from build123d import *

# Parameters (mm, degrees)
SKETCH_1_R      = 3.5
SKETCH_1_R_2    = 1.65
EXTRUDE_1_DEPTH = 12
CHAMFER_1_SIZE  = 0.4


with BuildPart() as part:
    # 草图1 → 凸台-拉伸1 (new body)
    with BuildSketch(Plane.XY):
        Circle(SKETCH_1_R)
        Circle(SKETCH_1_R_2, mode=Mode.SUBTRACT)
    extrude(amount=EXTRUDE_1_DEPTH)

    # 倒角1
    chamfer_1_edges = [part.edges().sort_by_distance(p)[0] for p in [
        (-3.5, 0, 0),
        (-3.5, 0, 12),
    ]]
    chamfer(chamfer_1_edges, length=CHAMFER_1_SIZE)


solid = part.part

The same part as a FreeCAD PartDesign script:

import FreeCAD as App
import Part
import Sketcher
from FreeCAD import Vector


def edges_at(feature, points):
    """Names of the edges that pass closest to the given points."""
    edges = feature.Shape.Edges
    near = lambda p: min(range(len(edges)), key=lambda i: edges[i].distToShape(Part.Vertex(*p))[0])
    return sorted({f"Edge{near(p) + 1}" for p in points})

doc = App.newDocument("Part")
params = doc.addObject("Spreadsheet::Sheet", "Params")
for row, (alias, value) in enumerate([
    ("sketch1_diameter", "7 mm"),
    ("sketch1_diameter2", "3.3 mm"),
    ("pad1_length", "12 mm"),
    ("chamfer_size", "0.4 mm"),
], start=1):
    params.set(f"A{row}", alias)
    params.set(f"B{row}", "=" + value)
    params.setAlias(f"B{row}", alias)

body = doc.addObject("PartDesign::Body", "Body")

# Sketch on XY plane
sketch1 = body.newObject("Sketcher::SketchObject", "Sketch")
sketch1.AttachmentSupport = (doc.getObject("XY_Plane"), [""])
sketch1.MapMode = "FlatFace"
sketch1.addGeometry([
    Part.Circle(Vector(0, 0, 0), Vector(0, 0, 1), 3.5),
    Part.Circle(Vector(0, 0, 0), Vector(0, 0, 1), 1.6),
], False)
sketch1.addConstraint([
    Sketcher.Constraint("Coincident", 0, 3, -1, 1),
    Sketcher.Constraint("Coincident", 1, 3, -1, 1),
    Sketcher.Constraint("Diameter", 0, 7.0),
    Sketcher.Constraint("Diameter", 1, 3.3),
])
sketch1.setExpression("Constraints[2]", "Params.sketch1_diameter")
sketch1.setExpression("Constraints[3]", "Params.sketch1_diameter2")
pad1 = body.newObject("PartDesign::Pad", "Pad")
pad1.Profile = sketch1
pad1.setExpression("Length", "Params.pad1_length")
doc.recompute()

chamfer = body.newObject("PartDesign::Chamfer", "Chamfer")
chamfer.Base = (pad1, edges_at(pad1, [(-3.5, 0, 0), (-3.5, 0, 12)]))
chamfer.setExpression("Size", "Params.chamfer_size")

doc.recompute()
